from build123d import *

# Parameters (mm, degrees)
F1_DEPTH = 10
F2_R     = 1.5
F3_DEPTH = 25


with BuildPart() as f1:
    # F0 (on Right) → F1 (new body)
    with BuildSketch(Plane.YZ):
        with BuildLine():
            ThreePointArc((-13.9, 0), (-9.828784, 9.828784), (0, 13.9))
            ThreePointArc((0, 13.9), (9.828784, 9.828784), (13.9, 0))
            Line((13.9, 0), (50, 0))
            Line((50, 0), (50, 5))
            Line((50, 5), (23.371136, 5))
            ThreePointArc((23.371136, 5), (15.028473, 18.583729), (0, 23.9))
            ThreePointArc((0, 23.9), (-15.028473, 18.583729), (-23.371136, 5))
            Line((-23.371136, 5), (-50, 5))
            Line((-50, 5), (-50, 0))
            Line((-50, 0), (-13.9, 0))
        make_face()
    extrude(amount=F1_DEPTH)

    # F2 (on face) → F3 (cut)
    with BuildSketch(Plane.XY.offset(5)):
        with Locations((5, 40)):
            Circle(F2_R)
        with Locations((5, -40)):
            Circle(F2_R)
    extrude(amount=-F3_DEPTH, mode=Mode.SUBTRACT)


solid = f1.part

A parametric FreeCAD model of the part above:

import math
import FreeCAD as App
import Part
import Sketcher

V = App.Vector
Q = App.Units.Quantity

doc = App.newDocument("Part")
body = doc.addObject("PartDesign::Body", "Body")

# Sketch on YZ plane
sketch1 = body.newObject("Sketcher::SketchObject", "Sketch")
sketch1.AttachmentSupport = (doc.getObject("YZ_Plane"), [""])
sketch1.MapMode = "FlatFace"
sketch1.addGeometry([
    Part.ArcOfCircle(Part.Circle(V(0, 0, 0), V(0, 0, 1), 14), math.radians(90), math.radians(180)),  # 0
    Part.ArcOfCircle(Part.Circle(V(0, 0, 0), V(0, 0, 1), 14), math.radians(0), math.radians(90)),  # 1
    Part.LineSegment(V(14, 0, 0), V(50, 0, 0)),  # 2
    Part.LineSegment(V(50, 0, 0), V(50, 5, 0)),  # 3
    Part.LineSegment(V(50, 5, 0), V(23, 5, 0)),  # 4
    Part.ArcOfCircle(Part.Circle(V(0, 0, 0), V(0, 0, 1), 24), math.radians(12), math.radians(90)),  # 5
    Part.ArcOfCircle(Part.Circle(V(0, 0, 0), V(0, 0, 1), 24), math.radians(90), math.radians(168)),  # 6
    Part.LineSegment(V(-23, 5, 0), V(-50, 5, 0)),  # 7
    Part.LineSegment(V(-50, 5, 0), V(-50, 0, 0)),  # 8
    Part.LineSegment(V(-50, 0, 0), V(-14, 0, 0)),  # 9
], False)
sketch1.addConstraint([
    Sketcher.Constraint("Tangent", 0, 1, 1, 2),
    Sketcher.Constraint("Coincident", 1, 1, 2, 1),
    Sketcher.Constraint("Coincident", 2, 2, 3, 1),
    Sketcher.Constraint("Coincident", 3, 2, 4, 1),
    Sketcher.Constraint("Coincident", 4, 2, 5, 1),
    Sketcher.Constraint("Tangent", 5, 2, 6, 1),
    Sketcher.Constraint("Coincident", 6, 2, 7, 1),
    Sketcher.Constraint("Coincident", 7, 2, 8, 1),
    Sketcher.Constraint("Coincident", 8, 2, 9, 1),
    Sketcher.Constraint("Coincident", 9, 2, 0, 2),
    Sketcher.Constraint("Horizontal", 2),
    Sketcher.Constraint("Vertical", 3),
    Sketcher.Constraint("Horizontal", 4),
    Sketcher.Constraint("Horizontal", 7),
    Sketcher.Constraint("Vertical", 8),
    Sketcher.Constraint("Horizontal", 9),
    Sketcher.Constraint("Coincident", 0, 3, -1, 1),
    Sketcher.Constraint("Coincident", 5, 3, -1, 1),
    Sketcher.Constraint("Equal", 0, 1),
    Sketcher.Constraint("Equal", 5, 6),
    Sketcher.Constraint("Symmetric", 2, 2, 8, 2, -1, 1),
    Sketcher.Constraint("PointOnObject", 0, 1, -2),
    Sketcher.Constraint("PointOnObject", 1, 1, -1),
    Sketcher.Constraint("PointOnObject", 5, 2, -2),
    Sketcher.Constraint("Horizontal", 4, 2, 6, 2),
    Sketcher.Constraint("Radius", 0, Q("13.900001 mm")),
    Sketcher.Constraint("Radius", 5, Q("23.900001 mm")),
    Sketcher.Constraint("DistanceY", 3, 1, 3, 2, Q("5 mm")),
    Sketcher.Constraint("DistanceX", 2, 1, 2, 2, Q("36.1 mm")),
])
pad1 = body.newObject("PartDesign::Pad", "Pad")
pad1.Profile = sketch1
pad1.Length = 10

# Sketch on XY plane
sketch2 = body.newObject("Sketcher::SketchObject", "Sketch001")
sketch2.AttachmentSupport = (doc.getObject("XY_Plane"), [""])
sketch2.MapMode = "FlatFace"
sketch2.AttachmentOffset = App.Placement(V(0, 0, 5), App.Rotation())
sketch2.addGeometry([
    Part.Circle(V(5, 40, 0), V(0, 0, 1), 1.5),
    Part.Circle(V(5, -40, 0), V(0, 0, 1), 1.5),
], False)
sketch2.addConstraint([
    Sketcher.Constraint("Equal", 0, 1),
    Sketcher.Constraint("Symmetric", 0, 3, 1, 3, -1),
    Sketcher.Constraint("Diameter", 0, Q("3 mm")),
    Sketcher.Constraint("DistanceX", -1, 1, 0, 3, Q("5 mm")),
    Sketcher.Constraint("DistanceY", -1, 1, 0, 3, Q("40 mm")),
])
pocket1 = body.newObject("PartDesign::Pocket", "Pocket")
pocket1.Profile = sketch2
pocket1.Length = 25

doc.recompute()
